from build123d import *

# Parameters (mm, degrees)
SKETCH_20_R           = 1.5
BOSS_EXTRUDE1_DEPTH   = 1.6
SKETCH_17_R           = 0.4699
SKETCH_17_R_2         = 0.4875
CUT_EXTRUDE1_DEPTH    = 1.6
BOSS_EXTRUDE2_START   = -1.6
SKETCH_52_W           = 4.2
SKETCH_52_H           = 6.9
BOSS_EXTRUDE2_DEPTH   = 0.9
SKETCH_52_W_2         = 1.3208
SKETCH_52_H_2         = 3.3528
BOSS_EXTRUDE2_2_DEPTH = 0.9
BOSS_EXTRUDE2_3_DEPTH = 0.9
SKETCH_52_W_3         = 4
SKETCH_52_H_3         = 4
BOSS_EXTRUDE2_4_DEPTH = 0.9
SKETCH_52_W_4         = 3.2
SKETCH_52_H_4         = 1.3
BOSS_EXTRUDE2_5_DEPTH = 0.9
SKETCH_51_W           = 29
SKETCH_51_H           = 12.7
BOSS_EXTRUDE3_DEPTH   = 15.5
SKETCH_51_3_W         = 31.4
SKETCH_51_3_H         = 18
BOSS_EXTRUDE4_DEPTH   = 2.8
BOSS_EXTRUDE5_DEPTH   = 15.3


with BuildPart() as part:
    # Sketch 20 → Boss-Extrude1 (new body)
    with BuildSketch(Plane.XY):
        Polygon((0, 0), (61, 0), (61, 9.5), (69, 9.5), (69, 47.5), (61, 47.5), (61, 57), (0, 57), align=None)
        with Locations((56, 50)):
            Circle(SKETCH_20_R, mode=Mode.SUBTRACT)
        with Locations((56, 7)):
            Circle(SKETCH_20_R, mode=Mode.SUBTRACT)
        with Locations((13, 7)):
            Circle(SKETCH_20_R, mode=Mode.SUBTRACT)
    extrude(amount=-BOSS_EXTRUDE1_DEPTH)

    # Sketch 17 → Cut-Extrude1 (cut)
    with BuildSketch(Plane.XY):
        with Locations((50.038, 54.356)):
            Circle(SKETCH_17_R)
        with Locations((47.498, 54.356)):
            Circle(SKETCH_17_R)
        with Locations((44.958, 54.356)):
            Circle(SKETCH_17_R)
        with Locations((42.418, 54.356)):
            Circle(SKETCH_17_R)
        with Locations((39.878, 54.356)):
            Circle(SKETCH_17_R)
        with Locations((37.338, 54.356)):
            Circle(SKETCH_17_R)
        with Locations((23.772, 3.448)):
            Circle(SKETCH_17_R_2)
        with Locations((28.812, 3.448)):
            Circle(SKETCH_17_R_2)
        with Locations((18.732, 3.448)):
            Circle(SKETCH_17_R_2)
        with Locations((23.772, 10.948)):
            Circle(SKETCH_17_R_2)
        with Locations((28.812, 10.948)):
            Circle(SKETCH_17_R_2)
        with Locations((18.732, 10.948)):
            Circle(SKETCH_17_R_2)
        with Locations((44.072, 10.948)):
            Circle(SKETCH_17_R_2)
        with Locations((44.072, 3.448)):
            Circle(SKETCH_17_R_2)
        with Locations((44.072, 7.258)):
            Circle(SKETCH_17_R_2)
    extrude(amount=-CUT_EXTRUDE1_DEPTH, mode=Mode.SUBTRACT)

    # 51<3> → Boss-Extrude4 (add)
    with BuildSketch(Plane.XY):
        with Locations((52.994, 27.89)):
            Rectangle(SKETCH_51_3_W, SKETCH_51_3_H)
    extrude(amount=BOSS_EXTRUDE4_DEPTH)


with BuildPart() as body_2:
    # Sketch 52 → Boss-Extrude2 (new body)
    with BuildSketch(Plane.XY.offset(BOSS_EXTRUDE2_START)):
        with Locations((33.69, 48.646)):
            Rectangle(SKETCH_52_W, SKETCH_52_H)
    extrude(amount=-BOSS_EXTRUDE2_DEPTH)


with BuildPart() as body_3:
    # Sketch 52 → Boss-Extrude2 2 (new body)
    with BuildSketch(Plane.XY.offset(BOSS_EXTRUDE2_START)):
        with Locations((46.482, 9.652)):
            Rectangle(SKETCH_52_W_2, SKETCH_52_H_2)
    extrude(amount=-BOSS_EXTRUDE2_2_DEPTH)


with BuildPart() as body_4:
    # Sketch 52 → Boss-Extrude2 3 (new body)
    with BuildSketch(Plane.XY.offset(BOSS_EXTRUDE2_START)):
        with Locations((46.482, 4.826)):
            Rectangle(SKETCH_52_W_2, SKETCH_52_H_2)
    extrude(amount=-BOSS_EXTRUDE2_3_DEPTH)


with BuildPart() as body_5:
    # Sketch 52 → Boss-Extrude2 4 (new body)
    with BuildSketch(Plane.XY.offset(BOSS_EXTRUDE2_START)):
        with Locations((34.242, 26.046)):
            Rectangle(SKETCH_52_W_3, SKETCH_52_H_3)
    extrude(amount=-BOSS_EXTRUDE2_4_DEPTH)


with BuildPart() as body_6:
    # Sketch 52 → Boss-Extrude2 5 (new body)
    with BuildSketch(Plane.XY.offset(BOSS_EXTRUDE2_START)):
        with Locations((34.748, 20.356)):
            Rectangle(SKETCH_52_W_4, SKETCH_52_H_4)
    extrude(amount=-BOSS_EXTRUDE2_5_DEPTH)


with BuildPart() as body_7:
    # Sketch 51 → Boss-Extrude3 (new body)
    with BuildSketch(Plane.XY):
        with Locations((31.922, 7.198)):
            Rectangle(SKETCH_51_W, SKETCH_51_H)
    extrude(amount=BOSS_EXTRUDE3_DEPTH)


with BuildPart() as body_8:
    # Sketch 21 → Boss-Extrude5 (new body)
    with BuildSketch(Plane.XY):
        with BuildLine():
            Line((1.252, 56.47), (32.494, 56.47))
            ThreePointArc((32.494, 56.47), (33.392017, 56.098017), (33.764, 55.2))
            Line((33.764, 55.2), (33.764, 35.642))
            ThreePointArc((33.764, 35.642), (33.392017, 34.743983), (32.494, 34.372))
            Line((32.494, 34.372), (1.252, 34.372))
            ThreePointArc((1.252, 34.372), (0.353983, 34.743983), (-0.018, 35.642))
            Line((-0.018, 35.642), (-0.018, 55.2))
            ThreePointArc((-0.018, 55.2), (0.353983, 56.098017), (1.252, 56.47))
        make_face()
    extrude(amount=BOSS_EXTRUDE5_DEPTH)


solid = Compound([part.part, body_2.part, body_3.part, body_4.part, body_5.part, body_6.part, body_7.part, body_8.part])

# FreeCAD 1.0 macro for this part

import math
import FreeCAD as App
import Part
import Sketcher
from FreeCAD import Vector

doc = App.newDocument("Part")
body = doc.addObject("PartDesign::Body", "Body")

# Sketch on XY plane
sketch1 = body.newObject("Sketcher::SketchObject", "Sketch")
sketch1.AttachmentSupport = (doc.getObject("XY_Plane"), [""])
sketch1.MapMode = "FlatFace"
sketch1.addGeometry([
    Part.LineSegment(Vector(0, 0, 0), Vector(61, 0, 0)),  # 0
    Part.LineSegment(Vector(61, 0, 0), Vector(61, 9.5, 0)),  # 1
    Part.LineSegment(Vector(61, 9.5, 0), Vector(69, 9.5, 0)),  # 2
    Part.LineSegment(Vector(69, 9.5, 0), Vector(69, 47.5, 0)),  # 3
    Part.LineSegment(Vector(69, 47.5, 0), Vector(61, 47.5, 0)),  # 4
    Part.LineSegment(Vector(61, 47.5, 0), Vector(61, 57, 0)),  # 5
    Part.LineSegment(Vector(61, 57, 0), Vector(0, 57, 0)),  # 6
    Part.LineSegment(Vector(0, 57, 0), Vector(0, 0, 0)),  # 7
    Part.Circle(Vector(13, 7, 0), Vector(0, 0, 1), 1.5),  # 8
    Part.Circle(Vector(56, 7, 0), Vector(0, 0, 1), 1.5),  # 9
    Part.Circle(Vector(56, 50, 0), Vector(0, 0, 1), 1.5),  # 10
], False)
sketch1.addConstraint([
    Sketcher.Constraint("Coincident", 0, 2, 1, 1),
    Sketcher.Constraint("Coincident", 1, 2, 2, 1),
    Sketcher.Constraint("Coincident", 2, 2, 3, 1),
    Sketcher.Constraint("Coincident", 3, 2, 4, 1),
    Sketcher.Constraint("Coincident", 4, 2, 5, 1),
    Sketcher.Constraint("Coincident", 5, 2, 6, 1),
    Sketcher.Constraint("Coincident", 6, 2, 7, 1),
    Sketcher.Constraint("Coincident", 7, 2, 0, 1),
    Sketcher.Constraint("Horizontal", 0),
    Sketcher.Constraint("Vertical", 1),
    Sketcher.Constraint("Horizontal", 2),
    Sketcher.Constraint("Vertical", 3),
    Sketcher.Constraint("Horizontal", 4),
    Sketcher.Constraint("Vertical", 5),
    Sketcher.Constraint("Horizontal", 6),
    Sketcher.Constraint("Vertical", 7),
    Sketcher.Constraint("Coincident", 7, 2, -1, 1),
    Sketcher.Constraint("Equal", 8, 9),
    Sketcher.Constraint("Equal", 9, 10),
    Sketcher.Constraint("Horizontal", 8, 3, 9, 3),
    Sketcher.Constraint("Vertical", 9, 3, 10, 3),
    Sketcher.Constraint("Vertical", 1, 2, 4, 2),
    Sketcher.Constraint("Equal", 1, 5),
    Sketcher.Constraint("Diameter", 8, 3.0),
    Sketcher.Constraint("DistanceX", 0, 1, 0, 2, 61.0),
    Sketcher.Constraint("DistanceX", 2, 1, 2, 2, 8.0),
    Sketcher.Constraint("DistanceY", 3, 1, 3, 2, 38.0),
    Sketcher.Constraint("DistanceY", 7, 2, 7, 1, 57.0),
    Sketcher.Constraint("DistanceX", -1, 1, 8, 3, 13.0),
    Sketcher.Constraint("DistanceY", -1, 1, 8, 3, 7.0),
    Sketcher.Constraint("DistanceX", -1, 1, 9, 3, 56.0),
    Sketcher.Constraint("DistanceY", -1, 1, 10, 3, 50.0),
])
pad1 = body.newObject("PartDesign::Pad", "Pad")
pad1.Profile = sketch1
pad1.Length = 1.6
pad1.Reversed = True

# Sketch on XY plane
sketch2 = body.newObject("Sketcher::SketchObject", "Sketch001")
sketch2.AttachmentSupport = (doc.getObject("XY_Plane"), [""])
sketch2.MapMode = "FlatFace"
sketch2.addGeometry([
    Part.Circle(Vector(50.04, 54.36, 0), Vector(0, 0, 1), 0.47),  # 0
    Part.Circle(Vector(47.5, 54.36, 0), Vector(0, 0, 1), 0.47),  # 1
    Part.Circle(Vector(44.96, 54.36, 0), Vector(0, 0, 1), 0.47),  # 2
    Part.Circle(Vector(42.42, 54.36, 0), Vector(0, 0, 1), 0.47),  # 3
    Part.Circle(Vector(39.88, 54.36, 0), Vector(0, 0, 1), 0.47),  # 4
    Part.Circle(Vector(37.34, 54.36, 0), Vector(0, 0, 1), 0.47),  # 5
    Part.Circle(Vector(23.77, 3.45, 0), Vector(0, 0, 1), 0.49),  # 6
    Part.Circle(Vector(28.81, 3.45, 0), Vector(0, 0, 1), 0.49),  # 7
    Part.Circle(Vector(18.73, 3.45, 0), Vector(0, 0, 1), 0.49),  # 8
    Part.Circle(Vector(23.77, 10.95, 0), Vector(0, 0, 1), 0.49),  # 9
    Part.Circle(Vector(28.81, 10.95, 0), Vector(0, 0, 1), 0.49),  # 10
    Part.Circle(Vector(18.73, 10.95, 0), Vector(0, 0, 1), 0.49),  # 11
    Part.Circle(Vector(44.07, 10.95, 0), Vector(0, 0, 1), 0.49),  # 12
    Part.Circle(Vector(44.07, 3.45, 0), Vector(0, 0, 1), 0.49),  # 13
    Part.Circle(Vector(44.07, 7.26, 0), Vector(0, 0, 1), 0.49),  # 14
], False)
sketch2.addConstraint([
    Sketcher.Constraint("Equal", 0, 1),
    Sketcher.Constraint("Equal", 1, 2),
    Sketcher.Constraint("Equal", 2, 3),
    Sketcher.Constraint("Equal", 3, 4),
    Sketcher.Constraint("Equal", 4, 5),
    Sketcher.Constraint("Equal", 6, 7),
    Sketcher.Constraint("Equal", 7, 8),
    Sketcher.Constraint("Equal", 8, 9),
    Sketcher.Constraint("Equal", 9, 10),
    Sketcher.Constraint("Equal", 10, 11),
    Sketcher.Constraint("Equal", 11, 12),
    Sketcher.Constraint("Equal", 12, 13),
    Sketcher.Constraint("Equal", 13, 14),
    Sketcher.Constraint("Horizontal", 0, 3, 1, 3),
    Sketcher.Constraint("Horizontal", 1, 3, 2, 3),
    Sketcher.Constraint("Horizontal", 2, 3, 3, 3),
    Sketcher.Constraint("Horizontal", 3, 3, 4, 3),
    Sketcher.Constraint("Horizontal", 4, 3, 5, 3),
    Sketcher.Constraint("Horizontal", 6, 3, 7, 3),
    Sketcher.Constraint("Horizontal", 7, 3, 8, 3),
    Sketcher.Constraint("Horizontal", 9, 3, 10, 3),
    Sketcher.Constraint("Horizontal", 10, 3, 11, 3),
    Sketcher.Constraint("Horizontal", 11, 3, 12, 3),
    Sketcher.Constraint("Horizontal", 8, 3, 13, 3),
    Sketcher.Constraint("Vertical", 6, 3, 9, 3),
    Sketcher.Constraint("Vertical", 7, 3, 10, 3),
    Sketcher.Constraint("Vertical", 8, 3, 11, 3),
    Sketcher.Constraint("Vertical", 12, 3, 13, 3),
    Sketcher.Constraint("Vertical", 13, 3, 14, 3),
    Sketcher.Constraint("Diameter", 6, 0.975),
    Sketcher.Constraint("Diameter", 0, 0.9398),
    Sketcher.Constraint("DistanceX", 5, 3, 0, 3, 12.7),
    Sketcher.Constraint("DistanceY", 6, 3, 9, 3, 7.5),
    Sketcher.Constraint("DistanceX", 9, 3, 12, 3, 20.3),
    Sketcher.Constraint("DistanceX", 1, 3, 0, 3, 2.54),
    Sketcher.Constraint("DistanceX", 2, 3, 1, 3, 2.54),
    Sketcher.Constraint("DistanceX", 3, 3, 2, 3, 2.54),
    Sketcher.Constraint("DistanceX", 4, 3, 3, 3, 2.54),
    Sketcher.Constraint("DistanceX", 6, 3, 7, 3, 5.04),
    Sketcher.Constraint("DistanceX", 8, 3, 6, 3, 5.04),
    Sketcher.Constraint("DistanceY", 14, 3, 12, 3, 3.69),
    Sketcher.Constraint("DistanceX", -1, 1, 0, 3, 50.038),
    Sketcher.Constraint("DistanceY", -1, 1, 0, 3, 54.356),
    Sketcher.Constraint("DistanceX", -1, 1, 6, 3, 23.772),
    Sketcher.Constraint("DistanceY", -1, 1, 6, 3, 3.448),
])
pocket1 = body.newObject("PartDesign::Pocket", "Pocket")
pocket1.Profile = sketch2
pocket1.Length = 1.6

# Sketch on XY plane
sketch3 = body.newObject("Sketcher::SketchObject", "Sketch002")
sketch3.AttachmentSupport = (doc.getObject("XY_Plane"), [""])
sketch3.MapMode = "FlatFace"
sketch3.addGeometry([
    Part.LineSegment(Vector(37, 37, 0), Vector(37, 19, 0)),
    Part.LineSegment(Vector(37, 19, 0), Vector(69, 19, 0)),
    Part.LineSegment(Vector(69, 19, 0), Vector(69, 37, 0)),
    Part.LineSegment(Vector(69, 37, 0), Vector(37, 37, 0)),
], False)
sketch3.addConstraint([
    Sketcher.Constraint("Coincident", 0, 2, 1, 1),
    Sketcher.Constraint("Coincident", 1, 2, 2, 1),
    Sketcher.Constraint("Coincident", 2, 2, 3, 1),
    Sketcher.Constraint("Coincident", 3, 2, 0, 1),
    Sketcher.Constraint("Vertical", 0),
    Sketcher.Constraint("Horizontal", 1),
    Sketcher.Constraint("Vertical", 2),
    Sketcher.Constraint("Horizontal", 3),
    Sketcher.Constraint("DistanceY", 0, 2, 0, 1, 18.0),
    Sketcher.Constraint("DistanceX", 1, 1, 1, 2, 31.4),
    Sketcher.Constraint("DistanceY", -1, 1, 0, 2, 18.89),
    Sketcher.Constraint("DistanceX", -1, 1, 0, 2, 37.294),
])
pad2 = body.newObject("PartDesign::Pad", "Pad001")
pad2.Profile = sketch3
pad2.Length = 2.8
body2 = doc.addObject("PartDesign::Body", "Body001")

# Sketch on XY plane
sketch4 = body2.newObject("Sketcher::SketchObject", "Sketch003")
sketch4.AttachmentSupport = (doc.getObject("XY_Plane001"), [""])
sketch4.MapMode = "FlatFace"
sketch4.AttachmentOffset = App.Placement(Vector(0, 0, -1.6), App.Rotation())
sketch4.addGeometry([
    Part.LineSegment(Vector(31.6, 52.1, 0), Vector(31.6, 45.2, 0)),
    Part.LineSegment(Vector(31.6, 45.2, 0), Vector(35.8, 45.2, 0)),
    Part.LineSegment(Vector(35.8, 45.2, 0), Vector(35.8, 52.1, 0)),
    Part.LineSegment(Vector(35.8, 52.1, 0), Vector(31.6, 52.1, 0)),
], False)
sketch4.addConstraint([
    Sketcher.Constraint("Coincident", 0, 2, 1, 1),
    Sketcher.Constraint("Coincident", 1, 2, 2, 1),
    Sketcher.Constraint("Coincident", 2, 2, 3, 1),
    Sketcher.Constraint("Coincident", 3, 2, 0, 1),
    Sketcher.Constraint("Vertical", 0),
    Sketcher.Constraint("Horizontal", 1),
    Sketcher.Constraint("Vertical", 2),
    Sketcher.Constraint("Horizontal", 3),
    Sketcher.Constraint("DistanceX", 1, 1, 1, 2, 4.2),
    Sketcher.Constraint("DistanceY", 0, 2, 0, 1, 6.9),
    Sketcher.Constraint("DistanceX", -1, 1, 0, 2, 31.59),
    Sketcher.Constraint("DistanceY", -1, 1, 0, 2, 45.196),
])
pad3 = body2.newObject("PartDesign::Pad", "Pad002")
pad3.Profile = sketch4
pad3.Length = 0.9
pad3.Reversed = True
body3 = doc.addObject("PartDesign::Body", "Body002")

# Sketch on XY plane
sketch5 = body3.newObject("Sketcher::SketchObject", "Sketch004")
sketch5.AttachmentSupport = (doc.getObject("XY_Plane002"), [""])
sketch5.MapMode = "FlatFace"
sketch5.AttachmentOffset = App.Placement(Vector(0, 0, -1.6), App.Rotation())
sketch5.addGeometry([
    Part.LineSegment(Vector(45.8, 11.3, 0), Vector(45.8, 8, 0)),
    Part.LineSegment(Vector(45.8, 8, 0), Vector(47.1, 8, 0)),
    Part.LineSegment(Vector(47.1, 8, 0), Vector(47.1, 11.3, 0)),
    Part.LineSegment(Vector(47.1, 11.3, 0), Vector(45.8, 11.3, 0)),
], False)
sketch5.addConstraint([
    Sketcher.Constraint("Coincident", 0, 2, 1, 1),
    Sketcher.Constraint("Coincident", 1, 2, 2, 1),
    Sketcher.Constraint("Coincident", 2, 2, 3, 1),
    Sketcher.Constraint("Coincident", 3, 2, 0, 1),
    Sketcher.Constraint("Vertical", 0),
    Sketcher.Constraint("Horizontal", 1),
    Sketcher.Constraint("Vertical", 2),
    Sketcher.Constraint("Horizontal", 3),
    Sketcher.Constraint("DistanceX", 1, 1, 1, 2, 1.3208),
    Sketcher.Constraint("DistanceY", 0, 2, 0, 1, 3.3528),
    Sketcher.Constraint("DistanceX", -1, 1, 0, 2, 45.8216),
    Sketcher.Constraint("DistanceY", -1, 1, 0, 2, 7.9756),
])
pad4 = body3.newObject("PartDesign::Pad", "Pad003")
pad4.Profile = sketch5
pad4.Length = 0.9
pad4.Reversed = True
body4 = doc.addObject("PartDesign::Body", "Body003")

# Sketch on XY plane
sketch6 = body4.newObject("Sketcher::SketchObject", "Sketch005")
sketch6.AttachmentSupport = (doc.getObject("XY_Plane003"), [""])
sketch6.MapMode = "FlatFace"
sketch6.AttachmentOffset = App.Placement(Vector(0, 0, -1.6), App.Rotation())
sketch6.addGeometry([
    Part.LineSegment(Vector(45.8, 6.5, 0), Vector(45.8, 3.1, 0)),
    Part.LineSegment(Vector(45.8, 3.1, 0), Vector(47.1, 3.1, 0)),
    Part.LineSegment(Vector(47.1, 3.1, 0), Vector(47.1, 6.5, 0)),
    Part.LineSegment(Vector(47.1, 6.5, 0), Vector(45.8, 6.5, 0)),
], False)
sketch6.addConstraint([
    Sketcher.Constraint("Coincident", 0, 2, 1, 1),
    Sketcher.Constraint("Coincident", 1, 2, 2, 1),
    Sketcher.Constraint("Coincident", 2, 2, 3, 1),
    Sketcher.Constraint("Coincident", 3, 2, 0, 1),
    Sketcher.Constraint("Vertical", 0),
    Sketcher.Constraint("Horizontal", 1),
    Sketcher.Constraint("Vertical", 2),
    Sketcher.Constraint("Horizontal", 3),
    Sketcher.Constraint("DistanceX", 1, 1, 1, 2, 1.3208),
    Sketcher.Constraint("DistanceY", 0, 2, 0, 1, 3.3528),
    Sketcher.Constraint("DistanceX", -1, 1, 0, 2, 45.8216),
    Sketcher.Constraint("DistanceY", -1, 1, 0, 2, 3.1496),
])
pad5 = body4.newObject("PartDesign::Pad", "Pad004")
pad5.Profile = sketch6
pad5.Length = 0.9
pad5.Reversed = True
body5 = doc.addObject("PartDesign::Body", "Body004")

# Sketch on XY plane
sketch7 = body5.newObject("Sketcher::SketchObject", "Sketch006")
sketch7.AttachmentSupport = (doc.getObject("XY_Plane004"), [""])
sketch7.MapMode = "FlatFace"
sketch7.AttachmentOffset = App.Placement(Vector(0, 0, -1.6), App.Rotation())
sketch7.addGeometry([
    Part.LineSegment(Vector(32.2, 28, 0), Vector(32.2, 24, 0)),
    Part.LineSegment(Vector(32.2, 24, 0), Vector(36.2, 24, 0)),
    Part.LineSegment(Vector(36.2, 24, 0), Vector(36.2, 28, 0)),
    Part.LineSegment(Vector(36.2, 28, 0), Vector(32.2, 28, 0)),
], False)
sketch7.addConstraint([
    Sketcher.Constraint("Coincident", 0, 2, 1, 1),
    Sketcher.Constraint("Coincident", 1, 2, 2, 1),
    Sketcher.Constraint("Coincident", 2, 2, 3, 1),
    Sketcher.Constraint("Coincident", 3, 2, 0, 1),
    Sketcher.Constraint("Vertical", 0),
    Sketcher.Constraint("Horizontal", 1),
    Sketcher.Constraint("Vertical", 2),
    Sketcher.Constraint("Horizontal", 3),
    Sketcher.Constraint("Equal", 3, 0),
    Sketcher.Constraint("DistanceX", 1, 1, 1, 2, 4.0),
    Sketcher.Constraint("DistanceX", -1, 1, 0, 2, 32.242),
    Sketcher.Constraint("DistanceY", -1, 1, 0, 2, 24.046),
])
pad6 = body5.newObject("PartDesign::Pad", "Pad005")
pad6.Profile = sketch7
pad6.Length = 0.9
pad6.Reversed = True
body6 = doc.addObject("PartDesign::Body", "Body005")

# Sketch on XY plane
sketch8 = body6.newObject("Sketcher::SketchObject", "Sketch007")
sketch8.AttachmentSupport = (doc.getObject("XY_Plane005"), [""])
sketch8.MapMode = "FlatFace"
sketch8.AttachmentOffset = App.Placement(Vector(0, 0, -1.6), App.Rotation())
sketch8.addGeometry([
    Part.LineSegment(Vector(33.1, 21, 0), Vector(33.1, 19.7, 0)),
    Part.LineSegment(Vector(33.1, 19.7, 0), Vector(36.3, 19.7, 0)),
    Part.LineSegment(Vector(36.3, 19.7, 0), Vector(36.3, 21, 0)),
    Part.LineSegment(Vector(36.3, 21, 0), Vector(33.1, 21, 0)),
], False)
sketch8.addConstraint([
    Sketcher.Constraint("Coincident", 0, 2, 1, 1),
    Sketcher.Constraint("Coincident", 1, 2, 2, 1),
    Sketcher.Constraint("Coincident", 2, 2, 3, 1),
    Sketcher.Constraint("Coincident", 3, 2, 0, 1),
    Sketcher.Constraint("Vertical", 0),
    Sketcher.Constraint("Horizontal", 1),
    Sketcher.Constraint("Vertical", 2),
    Sketcher.Constraint("Horizontal", 3),
    Sketcher.Constraint("DistanceX", 1, 1, 1, 2, 3.2),
    Sketcher.Constraint("DistanceY", 0, 2, 0, 1, 1.3),
    Sketcher.Constraint("DistanceX", -1, 1, 0, 2, 33.148),
    Sketcher.Constraint("DistanceY", -1, 1, 0, 2, 19.706),
])
pad7 = body6.newObject("PartDesign::Pad", "Pad006")
pad7.Profile = sketch8
pad7.Length = 0.9
pad7.Reversed = True
body7 = doc.addObject("PartDesign::Body", "Body006")

# Sketch on XY plane
sketch9 = body7.newObject("Sketcher::SketchObject", "Sketch008")
sketch9.AttachmentSupport = (doc.getObject("XY_Plane006"), [""])
sketch9.MapMode = "FlatFace"
sketch9.addGeometry([
    Part.LineSegment(Vector(17, 14, 0), Vector(17, 1, 0)),
    Part.LineSegment(Vector(17, 1, 0), Vector(46, 1, 0)),
    Part.LineSegment(Vector(46, 1, 0), Vector(46, 14, 0)),
    Part.LineSegment(Vector(46, 14, 0), Vector(17, 14, 0)),
], False)
sketch9.addConstraint([
    Sketcher.Constraint("Coincident", 0, 2, 1, 1),
    Sketcher.Constraint("Coincident", 1, 2, 2, 1),
    Sketcher.Constraint("Coincident", 2, 2, 3, 1),
    Sketcher.Constraint("Coincident", 3, 2, 0, 1),
    Sketcher.Constraint("Vertical", 0),
    Sketcher.Constraint("Horizontal", 1),
    Sketcher.Constraint("Vertical", 2),
    Sketcher.Constraint("Horizontal", 3),
    Sketcher.Constraint("DistanceX", 1, 1, 1, 2, 29.0),
    Sketcher.Constraint("DistanceY", 0, 2, 0, 1, 12.7),
    Sketcher.Constraint("DistanceX", -1, 1, 0, 2, 17.422),
    Sketcher.Constraint("DistanceY", -1, 1, 0, 2, 0.848),
])
pad8 = body7.newObject("PartDesign::Pad", "Pad007")
pad8.Profile = sketch9
pad8.Length = 15.5
body8 = doc.addObject("PartDesign::Body", "Body007")

# Sketch on XY plane
sketch10 = body8.newObject("Sketcher::SketchObject", "Sketch009")
sketch10.AttachmentSupport = (doc.getObject("XY_Plane007"), [""])
sketch10.MapMode = "FlatFace"
sketch10.addGeometry([
    Part.LineSegment(Vector(32.5, 56.5, 0), Vector(1.3, 56.5, 0)),  # 0
    Part.ArcOfCircle(Part.Circle(Vector(1.3, 55.2, 0), Vector(0, 0, 1), 1.3), math.radians(90), math.radians(180)),  # 1
    Part.LineSegment(Vector(0, 55.2, 0), Vector(0, 35.6, 0)),  # 2
    Part.ArcOfCircle(Part.Circle(Vector(1.3, 35.6, 0), Vector(0, 0, 1), 1.3), math.radians(-180), math.radians(-90)),  # 3
    Part.LineSegment(Vector(1.3, 34.4, 0), Vector(32.5, 34.4, 0)),  # 4
    Part.ArcOfCircle(Part.Circle(Vector(32.5, 35.6, 0), Vector(0, 0, 1), 1.3), math.radians(-90), math.radians(0)),  # 5
    Part.LineSegment(Vector(33.8, 35.6, 0), Vector(33.8, 55.2, 0)),  # 6
    Part.ArcOfCircle(Part.Circle(Vector(32.5, 55.2, 0), Vector(0, 0, 1), 1.3), math.radians(0), math.radians(90)),  # 7
], False)
sketch10.addConstraint([
    Sketcher.Constraint("Coincident", 0, 2, 1, 1),
    Sketcher.Constraint("Coincident", 1, 2, 2, 1),
    Sketcher.Constraint("Coincident", 2, 2, 3, 1),
    Sketcher.Constraint("Coincident", 3, 2, 4, 1),
    Sketcher.Constraint("Coincident", 4, 2, 5, 1),
    Sketcher.Constraint("Coincident", 5, 2, 6, 1),
    Sketcher.Constraint("Coincident", 6, 2, 7, 1),
    Sketcher.Constraint("Coincident", 7, 2, 0, 1),
    Sketcher.Constraint("Horizontal", 0),
    Sketcher.Constraint("Vertical", 2),
    Sketcher.Constraint("Horizontal", 4),
    Sketcher.Constraint("Vertical", 6),
    Sketcher.Constraint("Equal", 1, 3),
    Sketcher.Constraint("Equal", 3, 5),
    Sketcher.Constraint("Equal", 5, 7),
    Sketcher.Constraint("Horizontal", 2, 2, 5, 2),
    Sketcher.Constraint("Horizontal", 1, 2, 6, 2),
    Sketcher.Constraint("Vertical", 0, 2, 3, 2),
    Sketcher.Constraint("Vertical", 4, 2, 7, 2),
    Sketcher.Constraint("DistanceY", -1, 1, 1, 2, 55.2),
    Sketcher.Constraint("DistanceX", 0, 2, 0, 1, 31.242),
    Sketcher.Constraint("DistanceY", 2, 2, 2, 1, 19.558),
    Sketcher.Constraint("DistanceY", -1, 1, 0, 2, 56.47),
    Sketcher.Constraint("Radius", 1, 1.270029),
    Sketcher.Constraint("DistanceX", 1, 2, 0, 2, 1.27),
    Sketcher.Constraint("DistanceY", 3, 2, 2, 2, 1.27),
    Sketcher.Constraint("DistanceX", 4, 2, 5, 2, 1.27),
    Sketcher.Constraint("DistanceX", -1, 1, 0, 2, 1.252),
])
pad9 = body8.newObject("PartDesign::Pad", "Pad008")
pad9.Profile = sketch10
pad9.Length = 15.3

doc.recompute()
